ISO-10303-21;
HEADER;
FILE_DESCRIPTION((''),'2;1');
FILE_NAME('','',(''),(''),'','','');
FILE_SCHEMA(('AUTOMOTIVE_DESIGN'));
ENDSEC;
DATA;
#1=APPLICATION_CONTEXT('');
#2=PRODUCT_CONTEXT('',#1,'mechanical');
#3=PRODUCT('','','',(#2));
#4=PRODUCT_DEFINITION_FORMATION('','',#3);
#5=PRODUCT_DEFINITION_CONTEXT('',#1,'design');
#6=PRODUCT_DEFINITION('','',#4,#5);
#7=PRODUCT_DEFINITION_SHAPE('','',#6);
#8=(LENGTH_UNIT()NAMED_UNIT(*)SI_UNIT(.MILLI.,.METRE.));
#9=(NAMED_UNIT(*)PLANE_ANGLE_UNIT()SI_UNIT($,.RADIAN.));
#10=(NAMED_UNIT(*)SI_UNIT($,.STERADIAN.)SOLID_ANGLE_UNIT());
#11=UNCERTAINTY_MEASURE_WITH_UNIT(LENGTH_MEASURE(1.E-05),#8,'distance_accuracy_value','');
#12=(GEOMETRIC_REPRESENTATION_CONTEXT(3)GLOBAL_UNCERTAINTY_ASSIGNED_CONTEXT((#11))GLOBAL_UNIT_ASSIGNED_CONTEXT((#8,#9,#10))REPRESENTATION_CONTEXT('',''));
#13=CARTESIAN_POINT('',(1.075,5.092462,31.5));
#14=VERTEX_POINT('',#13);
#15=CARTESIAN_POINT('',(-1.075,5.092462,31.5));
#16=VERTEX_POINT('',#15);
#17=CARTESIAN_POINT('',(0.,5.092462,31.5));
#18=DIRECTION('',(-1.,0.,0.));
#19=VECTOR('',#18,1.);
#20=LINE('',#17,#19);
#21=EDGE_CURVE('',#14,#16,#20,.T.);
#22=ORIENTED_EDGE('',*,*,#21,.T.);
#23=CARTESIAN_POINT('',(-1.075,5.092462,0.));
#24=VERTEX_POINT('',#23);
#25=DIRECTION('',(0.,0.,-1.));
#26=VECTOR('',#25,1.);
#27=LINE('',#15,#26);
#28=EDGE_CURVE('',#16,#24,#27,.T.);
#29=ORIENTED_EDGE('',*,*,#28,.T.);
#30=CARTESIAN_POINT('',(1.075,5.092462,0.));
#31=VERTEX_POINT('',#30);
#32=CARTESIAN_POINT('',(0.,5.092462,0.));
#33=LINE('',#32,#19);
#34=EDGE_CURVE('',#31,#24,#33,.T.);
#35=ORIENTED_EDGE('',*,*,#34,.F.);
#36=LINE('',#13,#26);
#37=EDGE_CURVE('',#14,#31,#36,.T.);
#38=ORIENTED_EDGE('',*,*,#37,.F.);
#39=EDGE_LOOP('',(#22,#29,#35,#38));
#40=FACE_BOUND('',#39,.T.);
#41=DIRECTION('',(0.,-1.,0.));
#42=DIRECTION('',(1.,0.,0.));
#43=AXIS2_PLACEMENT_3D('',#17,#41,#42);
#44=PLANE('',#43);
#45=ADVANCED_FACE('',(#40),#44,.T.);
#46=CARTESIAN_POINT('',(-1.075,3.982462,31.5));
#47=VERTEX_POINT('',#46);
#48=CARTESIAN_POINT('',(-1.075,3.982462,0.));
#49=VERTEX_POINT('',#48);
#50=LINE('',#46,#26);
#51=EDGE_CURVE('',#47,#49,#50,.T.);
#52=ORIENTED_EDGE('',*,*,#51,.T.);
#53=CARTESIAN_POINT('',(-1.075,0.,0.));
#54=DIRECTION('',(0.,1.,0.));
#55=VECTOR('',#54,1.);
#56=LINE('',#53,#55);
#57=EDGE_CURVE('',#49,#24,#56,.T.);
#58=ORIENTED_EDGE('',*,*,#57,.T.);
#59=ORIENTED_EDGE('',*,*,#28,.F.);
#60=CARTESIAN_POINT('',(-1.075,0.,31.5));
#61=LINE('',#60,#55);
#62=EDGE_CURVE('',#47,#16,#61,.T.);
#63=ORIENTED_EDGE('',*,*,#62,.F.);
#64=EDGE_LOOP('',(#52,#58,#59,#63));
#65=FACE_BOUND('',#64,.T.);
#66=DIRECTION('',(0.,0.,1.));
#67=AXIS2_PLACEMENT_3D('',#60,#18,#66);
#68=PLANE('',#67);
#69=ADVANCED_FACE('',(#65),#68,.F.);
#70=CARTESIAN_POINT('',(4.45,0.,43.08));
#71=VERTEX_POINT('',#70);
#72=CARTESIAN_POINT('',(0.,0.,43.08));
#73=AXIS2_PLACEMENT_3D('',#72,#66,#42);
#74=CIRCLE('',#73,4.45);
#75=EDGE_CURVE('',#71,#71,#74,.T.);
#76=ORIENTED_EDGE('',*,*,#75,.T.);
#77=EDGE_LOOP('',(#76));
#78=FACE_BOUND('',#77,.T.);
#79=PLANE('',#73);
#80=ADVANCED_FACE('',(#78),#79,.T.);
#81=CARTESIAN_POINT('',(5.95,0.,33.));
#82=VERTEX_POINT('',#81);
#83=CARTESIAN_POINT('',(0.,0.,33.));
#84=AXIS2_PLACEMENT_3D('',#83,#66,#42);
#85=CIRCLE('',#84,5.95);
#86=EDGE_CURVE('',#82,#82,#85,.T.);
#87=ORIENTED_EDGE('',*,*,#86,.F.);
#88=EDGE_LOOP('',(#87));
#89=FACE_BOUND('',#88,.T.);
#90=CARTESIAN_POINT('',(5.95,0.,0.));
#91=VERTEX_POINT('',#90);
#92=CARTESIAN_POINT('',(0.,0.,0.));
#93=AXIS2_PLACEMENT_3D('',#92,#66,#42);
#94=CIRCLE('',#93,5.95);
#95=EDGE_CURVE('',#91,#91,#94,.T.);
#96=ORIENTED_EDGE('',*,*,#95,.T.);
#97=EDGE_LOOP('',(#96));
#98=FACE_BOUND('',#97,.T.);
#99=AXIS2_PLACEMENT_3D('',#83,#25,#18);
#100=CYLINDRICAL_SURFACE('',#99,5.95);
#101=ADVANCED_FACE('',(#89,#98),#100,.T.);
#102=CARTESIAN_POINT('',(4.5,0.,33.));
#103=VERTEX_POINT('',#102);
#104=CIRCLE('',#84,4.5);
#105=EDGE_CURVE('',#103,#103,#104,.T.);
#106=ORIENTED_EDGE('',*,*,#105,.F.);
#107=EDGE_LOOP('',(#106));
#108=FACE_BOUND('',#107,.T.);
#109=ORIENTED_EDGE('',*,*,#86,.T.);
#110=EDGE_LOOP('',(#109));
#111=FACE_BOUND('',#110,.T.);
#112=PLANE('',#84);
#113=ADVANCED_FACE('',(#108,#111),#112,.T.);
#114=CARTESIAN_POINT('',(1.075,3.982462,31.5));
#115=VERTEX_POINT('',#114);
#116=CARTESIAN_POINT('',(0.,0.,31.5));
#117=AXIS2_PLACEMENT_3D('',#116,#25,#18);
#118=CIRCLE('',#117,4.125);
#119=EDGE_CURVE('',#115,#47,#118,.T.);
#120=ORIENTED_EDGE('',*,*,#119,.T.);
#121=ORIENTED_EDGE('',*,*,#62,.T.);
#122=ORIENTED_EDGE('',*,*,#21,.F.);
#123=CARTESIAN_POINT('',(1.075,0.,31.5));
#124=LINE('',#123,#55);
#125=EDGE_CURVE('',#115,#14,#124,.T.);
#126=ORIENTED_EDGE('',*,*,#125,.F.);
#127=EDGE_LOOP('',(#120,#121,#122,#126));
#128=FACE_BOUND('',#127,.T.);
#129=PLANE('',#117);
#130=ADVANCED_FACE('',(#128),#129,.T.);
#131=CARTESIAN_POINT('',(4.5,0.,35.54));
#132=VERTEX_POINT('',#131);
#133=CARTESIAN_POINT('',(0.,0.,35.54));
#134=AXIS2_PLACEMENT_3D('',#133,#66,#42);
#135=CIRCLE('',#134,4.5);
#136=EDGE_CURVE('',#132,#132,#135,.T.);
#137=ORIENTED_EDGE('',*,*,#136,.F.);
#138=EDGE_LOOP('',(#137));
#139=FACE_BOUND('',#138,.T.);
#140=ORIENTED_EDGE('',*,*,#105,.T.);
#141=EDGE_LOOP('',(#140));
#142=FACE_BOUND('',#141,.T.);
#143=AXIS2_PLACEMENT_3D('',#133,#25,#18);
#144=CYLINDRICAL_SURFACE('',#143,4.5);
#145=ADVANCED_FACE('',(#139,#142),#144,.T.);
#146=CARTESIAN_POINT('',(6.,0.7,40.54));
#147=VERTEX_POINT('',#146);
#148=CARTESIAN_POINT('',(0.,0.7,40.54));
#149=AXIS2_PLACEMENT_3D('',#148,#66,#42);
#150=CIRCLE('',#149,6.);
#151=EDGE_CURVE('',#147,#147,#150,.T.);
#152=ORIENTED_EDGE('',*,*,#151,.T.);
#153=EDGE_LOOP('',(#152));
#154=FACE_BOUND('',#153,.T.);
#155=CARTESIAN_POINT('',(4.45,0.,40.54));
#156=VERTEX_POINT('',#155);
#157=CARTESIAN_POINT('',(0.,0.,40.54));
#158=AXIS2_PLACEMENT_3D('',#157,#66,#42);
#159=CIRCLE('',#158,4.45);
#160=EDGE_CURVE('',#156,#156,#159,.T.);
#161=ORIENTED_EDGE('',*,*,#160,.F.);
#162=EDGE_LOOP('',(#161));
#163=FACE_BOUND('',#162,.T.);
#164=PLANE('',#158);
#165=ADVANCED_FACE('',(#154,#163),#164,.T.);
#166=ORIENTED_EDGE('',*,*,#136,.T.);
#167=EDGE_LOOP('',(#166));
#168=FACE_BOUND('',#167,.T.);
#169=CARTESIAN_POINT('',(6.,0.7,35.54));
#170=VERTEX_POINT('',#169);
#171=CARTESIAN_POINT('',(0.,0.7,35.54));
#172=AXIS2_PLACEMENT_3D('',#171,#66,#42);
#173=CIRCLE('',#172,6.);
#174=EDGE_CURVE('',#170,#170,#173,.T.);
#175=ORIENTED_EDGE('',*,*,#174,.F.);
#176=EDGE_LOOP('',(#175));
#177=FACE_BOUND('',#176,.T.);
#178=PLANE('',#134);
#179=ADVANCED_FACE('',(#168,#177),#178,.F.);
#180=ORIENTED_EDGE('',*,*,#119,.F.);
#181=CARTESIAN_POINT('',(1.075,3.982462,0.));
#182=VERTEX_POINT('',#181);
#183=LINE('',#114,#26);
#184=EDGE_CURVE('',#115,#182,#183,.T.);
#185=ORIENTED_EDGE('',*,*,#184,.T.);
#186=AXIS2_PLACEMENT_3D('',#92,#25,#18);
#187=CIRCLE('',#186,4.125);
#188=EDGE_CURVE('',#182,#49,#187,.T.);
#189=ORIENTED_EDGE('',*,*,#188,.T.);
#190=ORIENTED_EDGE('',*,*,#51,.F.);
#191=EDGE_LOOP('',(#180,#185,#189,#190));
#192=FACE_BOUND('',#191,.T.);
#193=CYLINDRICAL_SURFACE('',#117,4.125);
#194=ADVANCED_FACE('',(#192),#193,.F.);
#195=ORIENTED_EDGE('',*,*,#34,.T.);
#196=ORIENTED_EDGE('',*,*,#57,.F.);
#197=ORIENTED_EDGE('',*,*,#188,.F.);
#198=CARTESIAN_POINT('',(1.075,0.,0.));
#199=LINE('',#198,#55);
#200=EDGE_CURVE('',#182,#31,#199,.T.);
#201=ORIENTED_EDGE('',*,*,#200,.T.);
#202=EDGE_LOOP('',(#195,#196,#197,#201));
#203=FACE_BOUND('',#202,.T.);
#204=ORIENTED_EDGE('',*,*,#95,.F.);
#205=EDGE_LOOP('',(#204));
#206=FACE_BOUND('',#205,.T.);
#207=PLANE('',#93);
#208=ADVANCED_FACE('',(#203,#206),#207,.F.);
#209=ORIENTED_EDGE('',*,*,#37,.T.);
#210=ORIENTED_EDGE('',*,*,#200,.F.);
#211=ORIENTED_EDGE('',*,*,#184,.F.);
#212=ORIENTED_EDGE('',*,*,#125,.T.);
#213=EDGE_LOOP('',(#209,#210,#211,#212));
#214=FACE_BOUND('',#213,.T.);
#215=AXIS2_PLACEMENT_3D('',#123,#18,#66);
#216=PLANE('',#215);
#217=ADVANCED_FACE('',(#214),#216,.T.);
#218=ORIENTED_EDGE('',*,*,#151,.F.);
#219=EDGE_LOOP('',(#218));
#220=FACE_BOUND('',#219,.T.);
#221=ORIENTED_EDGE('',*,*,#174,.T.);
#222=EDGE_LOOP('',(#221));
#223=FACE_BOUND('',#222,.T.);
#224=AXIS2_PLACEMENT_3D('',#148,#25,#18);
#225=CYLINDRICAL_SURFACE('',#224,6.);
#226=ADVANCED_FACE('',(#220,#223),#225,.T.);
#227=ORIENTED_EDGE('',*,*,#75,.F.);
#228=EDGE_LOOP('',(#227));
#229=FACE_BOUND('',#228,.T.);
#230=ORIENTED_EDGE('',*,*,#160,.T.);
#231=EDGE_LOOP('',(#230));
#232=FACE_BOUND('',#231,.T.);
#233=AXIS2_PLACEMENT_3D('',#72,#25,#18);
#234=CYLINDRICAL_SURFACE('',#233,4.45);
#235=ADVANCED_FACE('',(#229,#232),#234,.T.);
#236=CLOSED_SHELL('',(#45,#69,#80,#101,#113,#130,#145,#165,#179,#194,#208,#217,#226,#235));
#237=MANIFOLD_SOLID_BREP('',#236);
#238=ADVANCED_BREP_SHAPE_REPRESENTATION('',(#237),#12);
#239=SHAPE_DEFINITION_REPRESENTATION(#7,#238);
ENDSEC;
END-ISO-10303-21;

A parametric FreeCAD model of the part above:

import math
import FreeCAD as App
import Part
import Sketcher
Q = App.Units.Quantity

doc = App.newDocument("Part")
params = doc.addObject("Spreadsheet::Sheet", "Params")
for row, (alias, value) in enumerate([
    ("sketch1_diameter", "11.9 mm"),
    ("pad1_length", "33 mm"),
    ("sketch2_diameter", "9 mm"),
    ("pad2_length", "2.54 mm"),
    ("sketch3_diameter", "12 mm"),
    ("pad3_length", "5 mm"),
    ("sketch4_diameter", "8.9 mm"),
    ("pad4_length", "2.54 mm"),
    ("sketch5_width", "2.15 mm"),
    ("sketch5_height", "1.11 mm"),
    ("pocket1_length", "31.5 mm"),
], start=1):
    params.set(f"A{row}", alias)
    params.set(f"B{row}", "=" + value)
    params.setAlias(f"B{row}", alias)

body = doc.addObject("PartDesign::Body", "Body")

# Sketch on XY plane
sketch1 = body.newObject("Sketcher::SketchObject", "Sketch")
sketch1.AttachmentSupport = (doc.getObject("XY_Plane"), [""])
sketch1.MapMode = "FlatFace"
sketch1.addGeometry(Part.Circle(App.Vector(0, 0, 0), App.Vector(0, 0, 1), 6), False)
sketch1.addConstraint(Sketcher.Constraint("Coincident", 0, 3, -1, 1))
sketch1.addConstraint(Sketcher.Constraint("Diameter", 0, Q("11.9 mm")))
sketch1.setExpression("Constraints[1]", "Params.sketch1_diameter")
pad1 = body.newObject("PartDesign::Pad", "Pad")
pad1.Profile = sketch1
pad1.setExpression("Length", "Params.pad1_length")

# Sketch on XY plane
sketch2 = body.newObject("Sketcher::SketchObject", "Sketch001")
sketch2.AttachmentSupport = (doc.getObject("XY_Plane"), [""])
sketch2.MapMode = "FlatFace"
sketch2.AttachmentOffset = App.Placement(App.Vector(0, 0, 33), App.Rotation())
sketch2.addGeometry(Part.Circle(App.Vector(0, 0, 0), App.Vector(0, 0, 1), 4.5), False)
sketch2.addConstraint(Sketcher.Constraint("Coincident", 0, 3, -1, 1))
sketch2.addConstraint(Sketcher.Constraint("Diameter", 0, Q("9 mm")))
sketch2.setExpression("Constraints[1]", "Params.sketch2_diameter")
pad2 = body.newObject("PartDesign::Pad", "Pad001")
pad2.Profile = sketch2
pad2.setExpression("Length", "Params.pad2_length")

# Sketch on XY plane
sketch3 = body.newObject("Sketcher::SketchObject", "Sketch002")
sketch3.AttachmentSupport = (doc.getObject("XY_Plane"), [""])
sketch3.MapMode = "FlatFace"
sketch3.AttachmentOffset = App.Placement(App.Vector(0, 0, 35.54), App.Rotation())
sketch3.addGeometry(Part.Circle(App.Vector(0, 1, 0), App.Vector(0, 0, 1), 6), False)
sketch3.addConstraint(Sketcher.Constraint("PointOnObject", 0, 3, -2))
sketch3.addConstraint(Sketcher.Constraint("Diameter", 0, Q("12 mm")))
sketch3.addConstraint(Sketcher.Constraint("DistanceY", -1, 1, 0, 3, Q("0.7 mm")))
sketch3.setExpression("Constraints[1]", "Params.sketch3_diameter")
pad3 = body.newObject("PartDesign::Pad", "Pad002")
pad3.Profile = sketch3
pad3.setExpression("Length", "Params.pad3_length")

# Sketch on XY plane
sketch4 = body.newObject("Sketcher::SketchObject", "Sketch003")
sketch4.AttachmentSupport = (doc.getObject("XY_Plane"), [""])
sketch4.MapMode = "FlatFace"
sketch4.AttachmentOffset = App.Placement(App.Vector(0, 0, 40.54), App.Rotation())
sketch4.addGeometry(Part.Circle(App.Vector(0, 0, 0), App.Vector(0, 0, 1), 4.5), False)
sketch4.addConstraint(Sketcher.Constraint("Coincident", 0, 3, -1, 1))
sketch4.addConstraint(Sketcher.Constraint("Diameter", 0, Q("8.9 mm")))
sketch4.setExpression("Constraints[1]", "Params.sketch4_diameter")
pad4 = body.newObject("PartDesign::Pad", "Pad003")
pad4.Profile = sketch4
pad4.setExpression("Length", "Params.pad4_length")

# Sketch on XY plane
sketch5 = body.newObject("Sketcher::SketchObject", "Sketch004")
sketch5.AttachmentSupport = (doc.getObject("XY_Plane"), [""])
sketch5.MapMode = "FlatFace"
sketch5.addGeometry(Part.LineSegment(App.Vector(1.1, 5.1, 0), App.Vector(1.1, 4, 0)), False)
sketch5.addGeometry(Part.ArcOfCircle(Part.Circle(App.Vector(0, 0, 0), App.Vector(0, 0, 1), 4.1), math.radians(180), math.radians(435)), False)
sketch5.addGeometry(Part.ArcOfCircle(Part.Circle(App.Vector(0, 0, 0), App.Vector(0, 0, 1), 4.1), math.radians(105), math.radians(180)), False)
sketch5.addGeometry(Part.LineSegment(App.Vector(-1.1, 4, 0), App.Vector(-1.1, 5.1, 0)), False)
sketch5.addGeometry(Part.LineSegment(App.Vector(-1.1, 5.1, 0), App.Vector(1.1, 5.1, 0)), False)
sketch5.addConstraint(Sketcher.Constraint("Coincident", 0, 2, 1, 2))
sketch5.addConstraint(Sketcher.Constraint("Tangent", 1, 1, 2, 2))
sketch5.addConstraint(Sketcher.Constraint("Coincident", 2, 1, 3, 1))
sketch5.addConstraint(Sketcher.Constraint("Coincident", 3, 2, 4, 1))
sketch5.addConstraint(Sketcher.Constraint("Coincident", 4, 2, 0, 1))
sketch5.addConstraint(Sketcher.Constraint("Vertical", 0))
sketch5.addConstraint(Sketcher.Constraint("Vertical", 3))
sketch5.addConstraint(Sketcher.Constraint("Horizontal", 4))
sketch5.addConstraint(Sketcher.Constraint("Coincident", 1, 3, -1, 1))
sketch5.addConstraint(Sketcher.Constraint("Equal", 1, 2))
sketch5.addConstraint(Sketcher.Constraint("PointOnObject", 1, 1, -1))
sketch5.addConstraint(Sketcher.Constraint("Horizontal", 0, 2, 2, 1))
sketch5.addConstraint(Sketcher.Constraint("Radius", 1, Q("4.125 mm")))
sketch5.addConstraint(Sketcher.Constraint("DistanceX", 4, 1, 4, 2, Q("2.15 mm")))
sketch5.addConstraint(Sketcher.Constraint("DistanceY", 0, 2, 0, 1, Q("1.11 mm")))
sketch5.setExpression("Constraints[13]", "Params.sketch5_width")
sketch5.setExpression("Constraints[14]", "Params.sketch5_height")
pocket1 = body.newObject("PartDesign::Pocket", "Pocket")
pocket1.Profile = sketch5
pocket1.setExpression("Length", "Params.pocket1_length")
pocket1.Reversed = True

doc.recompute()
